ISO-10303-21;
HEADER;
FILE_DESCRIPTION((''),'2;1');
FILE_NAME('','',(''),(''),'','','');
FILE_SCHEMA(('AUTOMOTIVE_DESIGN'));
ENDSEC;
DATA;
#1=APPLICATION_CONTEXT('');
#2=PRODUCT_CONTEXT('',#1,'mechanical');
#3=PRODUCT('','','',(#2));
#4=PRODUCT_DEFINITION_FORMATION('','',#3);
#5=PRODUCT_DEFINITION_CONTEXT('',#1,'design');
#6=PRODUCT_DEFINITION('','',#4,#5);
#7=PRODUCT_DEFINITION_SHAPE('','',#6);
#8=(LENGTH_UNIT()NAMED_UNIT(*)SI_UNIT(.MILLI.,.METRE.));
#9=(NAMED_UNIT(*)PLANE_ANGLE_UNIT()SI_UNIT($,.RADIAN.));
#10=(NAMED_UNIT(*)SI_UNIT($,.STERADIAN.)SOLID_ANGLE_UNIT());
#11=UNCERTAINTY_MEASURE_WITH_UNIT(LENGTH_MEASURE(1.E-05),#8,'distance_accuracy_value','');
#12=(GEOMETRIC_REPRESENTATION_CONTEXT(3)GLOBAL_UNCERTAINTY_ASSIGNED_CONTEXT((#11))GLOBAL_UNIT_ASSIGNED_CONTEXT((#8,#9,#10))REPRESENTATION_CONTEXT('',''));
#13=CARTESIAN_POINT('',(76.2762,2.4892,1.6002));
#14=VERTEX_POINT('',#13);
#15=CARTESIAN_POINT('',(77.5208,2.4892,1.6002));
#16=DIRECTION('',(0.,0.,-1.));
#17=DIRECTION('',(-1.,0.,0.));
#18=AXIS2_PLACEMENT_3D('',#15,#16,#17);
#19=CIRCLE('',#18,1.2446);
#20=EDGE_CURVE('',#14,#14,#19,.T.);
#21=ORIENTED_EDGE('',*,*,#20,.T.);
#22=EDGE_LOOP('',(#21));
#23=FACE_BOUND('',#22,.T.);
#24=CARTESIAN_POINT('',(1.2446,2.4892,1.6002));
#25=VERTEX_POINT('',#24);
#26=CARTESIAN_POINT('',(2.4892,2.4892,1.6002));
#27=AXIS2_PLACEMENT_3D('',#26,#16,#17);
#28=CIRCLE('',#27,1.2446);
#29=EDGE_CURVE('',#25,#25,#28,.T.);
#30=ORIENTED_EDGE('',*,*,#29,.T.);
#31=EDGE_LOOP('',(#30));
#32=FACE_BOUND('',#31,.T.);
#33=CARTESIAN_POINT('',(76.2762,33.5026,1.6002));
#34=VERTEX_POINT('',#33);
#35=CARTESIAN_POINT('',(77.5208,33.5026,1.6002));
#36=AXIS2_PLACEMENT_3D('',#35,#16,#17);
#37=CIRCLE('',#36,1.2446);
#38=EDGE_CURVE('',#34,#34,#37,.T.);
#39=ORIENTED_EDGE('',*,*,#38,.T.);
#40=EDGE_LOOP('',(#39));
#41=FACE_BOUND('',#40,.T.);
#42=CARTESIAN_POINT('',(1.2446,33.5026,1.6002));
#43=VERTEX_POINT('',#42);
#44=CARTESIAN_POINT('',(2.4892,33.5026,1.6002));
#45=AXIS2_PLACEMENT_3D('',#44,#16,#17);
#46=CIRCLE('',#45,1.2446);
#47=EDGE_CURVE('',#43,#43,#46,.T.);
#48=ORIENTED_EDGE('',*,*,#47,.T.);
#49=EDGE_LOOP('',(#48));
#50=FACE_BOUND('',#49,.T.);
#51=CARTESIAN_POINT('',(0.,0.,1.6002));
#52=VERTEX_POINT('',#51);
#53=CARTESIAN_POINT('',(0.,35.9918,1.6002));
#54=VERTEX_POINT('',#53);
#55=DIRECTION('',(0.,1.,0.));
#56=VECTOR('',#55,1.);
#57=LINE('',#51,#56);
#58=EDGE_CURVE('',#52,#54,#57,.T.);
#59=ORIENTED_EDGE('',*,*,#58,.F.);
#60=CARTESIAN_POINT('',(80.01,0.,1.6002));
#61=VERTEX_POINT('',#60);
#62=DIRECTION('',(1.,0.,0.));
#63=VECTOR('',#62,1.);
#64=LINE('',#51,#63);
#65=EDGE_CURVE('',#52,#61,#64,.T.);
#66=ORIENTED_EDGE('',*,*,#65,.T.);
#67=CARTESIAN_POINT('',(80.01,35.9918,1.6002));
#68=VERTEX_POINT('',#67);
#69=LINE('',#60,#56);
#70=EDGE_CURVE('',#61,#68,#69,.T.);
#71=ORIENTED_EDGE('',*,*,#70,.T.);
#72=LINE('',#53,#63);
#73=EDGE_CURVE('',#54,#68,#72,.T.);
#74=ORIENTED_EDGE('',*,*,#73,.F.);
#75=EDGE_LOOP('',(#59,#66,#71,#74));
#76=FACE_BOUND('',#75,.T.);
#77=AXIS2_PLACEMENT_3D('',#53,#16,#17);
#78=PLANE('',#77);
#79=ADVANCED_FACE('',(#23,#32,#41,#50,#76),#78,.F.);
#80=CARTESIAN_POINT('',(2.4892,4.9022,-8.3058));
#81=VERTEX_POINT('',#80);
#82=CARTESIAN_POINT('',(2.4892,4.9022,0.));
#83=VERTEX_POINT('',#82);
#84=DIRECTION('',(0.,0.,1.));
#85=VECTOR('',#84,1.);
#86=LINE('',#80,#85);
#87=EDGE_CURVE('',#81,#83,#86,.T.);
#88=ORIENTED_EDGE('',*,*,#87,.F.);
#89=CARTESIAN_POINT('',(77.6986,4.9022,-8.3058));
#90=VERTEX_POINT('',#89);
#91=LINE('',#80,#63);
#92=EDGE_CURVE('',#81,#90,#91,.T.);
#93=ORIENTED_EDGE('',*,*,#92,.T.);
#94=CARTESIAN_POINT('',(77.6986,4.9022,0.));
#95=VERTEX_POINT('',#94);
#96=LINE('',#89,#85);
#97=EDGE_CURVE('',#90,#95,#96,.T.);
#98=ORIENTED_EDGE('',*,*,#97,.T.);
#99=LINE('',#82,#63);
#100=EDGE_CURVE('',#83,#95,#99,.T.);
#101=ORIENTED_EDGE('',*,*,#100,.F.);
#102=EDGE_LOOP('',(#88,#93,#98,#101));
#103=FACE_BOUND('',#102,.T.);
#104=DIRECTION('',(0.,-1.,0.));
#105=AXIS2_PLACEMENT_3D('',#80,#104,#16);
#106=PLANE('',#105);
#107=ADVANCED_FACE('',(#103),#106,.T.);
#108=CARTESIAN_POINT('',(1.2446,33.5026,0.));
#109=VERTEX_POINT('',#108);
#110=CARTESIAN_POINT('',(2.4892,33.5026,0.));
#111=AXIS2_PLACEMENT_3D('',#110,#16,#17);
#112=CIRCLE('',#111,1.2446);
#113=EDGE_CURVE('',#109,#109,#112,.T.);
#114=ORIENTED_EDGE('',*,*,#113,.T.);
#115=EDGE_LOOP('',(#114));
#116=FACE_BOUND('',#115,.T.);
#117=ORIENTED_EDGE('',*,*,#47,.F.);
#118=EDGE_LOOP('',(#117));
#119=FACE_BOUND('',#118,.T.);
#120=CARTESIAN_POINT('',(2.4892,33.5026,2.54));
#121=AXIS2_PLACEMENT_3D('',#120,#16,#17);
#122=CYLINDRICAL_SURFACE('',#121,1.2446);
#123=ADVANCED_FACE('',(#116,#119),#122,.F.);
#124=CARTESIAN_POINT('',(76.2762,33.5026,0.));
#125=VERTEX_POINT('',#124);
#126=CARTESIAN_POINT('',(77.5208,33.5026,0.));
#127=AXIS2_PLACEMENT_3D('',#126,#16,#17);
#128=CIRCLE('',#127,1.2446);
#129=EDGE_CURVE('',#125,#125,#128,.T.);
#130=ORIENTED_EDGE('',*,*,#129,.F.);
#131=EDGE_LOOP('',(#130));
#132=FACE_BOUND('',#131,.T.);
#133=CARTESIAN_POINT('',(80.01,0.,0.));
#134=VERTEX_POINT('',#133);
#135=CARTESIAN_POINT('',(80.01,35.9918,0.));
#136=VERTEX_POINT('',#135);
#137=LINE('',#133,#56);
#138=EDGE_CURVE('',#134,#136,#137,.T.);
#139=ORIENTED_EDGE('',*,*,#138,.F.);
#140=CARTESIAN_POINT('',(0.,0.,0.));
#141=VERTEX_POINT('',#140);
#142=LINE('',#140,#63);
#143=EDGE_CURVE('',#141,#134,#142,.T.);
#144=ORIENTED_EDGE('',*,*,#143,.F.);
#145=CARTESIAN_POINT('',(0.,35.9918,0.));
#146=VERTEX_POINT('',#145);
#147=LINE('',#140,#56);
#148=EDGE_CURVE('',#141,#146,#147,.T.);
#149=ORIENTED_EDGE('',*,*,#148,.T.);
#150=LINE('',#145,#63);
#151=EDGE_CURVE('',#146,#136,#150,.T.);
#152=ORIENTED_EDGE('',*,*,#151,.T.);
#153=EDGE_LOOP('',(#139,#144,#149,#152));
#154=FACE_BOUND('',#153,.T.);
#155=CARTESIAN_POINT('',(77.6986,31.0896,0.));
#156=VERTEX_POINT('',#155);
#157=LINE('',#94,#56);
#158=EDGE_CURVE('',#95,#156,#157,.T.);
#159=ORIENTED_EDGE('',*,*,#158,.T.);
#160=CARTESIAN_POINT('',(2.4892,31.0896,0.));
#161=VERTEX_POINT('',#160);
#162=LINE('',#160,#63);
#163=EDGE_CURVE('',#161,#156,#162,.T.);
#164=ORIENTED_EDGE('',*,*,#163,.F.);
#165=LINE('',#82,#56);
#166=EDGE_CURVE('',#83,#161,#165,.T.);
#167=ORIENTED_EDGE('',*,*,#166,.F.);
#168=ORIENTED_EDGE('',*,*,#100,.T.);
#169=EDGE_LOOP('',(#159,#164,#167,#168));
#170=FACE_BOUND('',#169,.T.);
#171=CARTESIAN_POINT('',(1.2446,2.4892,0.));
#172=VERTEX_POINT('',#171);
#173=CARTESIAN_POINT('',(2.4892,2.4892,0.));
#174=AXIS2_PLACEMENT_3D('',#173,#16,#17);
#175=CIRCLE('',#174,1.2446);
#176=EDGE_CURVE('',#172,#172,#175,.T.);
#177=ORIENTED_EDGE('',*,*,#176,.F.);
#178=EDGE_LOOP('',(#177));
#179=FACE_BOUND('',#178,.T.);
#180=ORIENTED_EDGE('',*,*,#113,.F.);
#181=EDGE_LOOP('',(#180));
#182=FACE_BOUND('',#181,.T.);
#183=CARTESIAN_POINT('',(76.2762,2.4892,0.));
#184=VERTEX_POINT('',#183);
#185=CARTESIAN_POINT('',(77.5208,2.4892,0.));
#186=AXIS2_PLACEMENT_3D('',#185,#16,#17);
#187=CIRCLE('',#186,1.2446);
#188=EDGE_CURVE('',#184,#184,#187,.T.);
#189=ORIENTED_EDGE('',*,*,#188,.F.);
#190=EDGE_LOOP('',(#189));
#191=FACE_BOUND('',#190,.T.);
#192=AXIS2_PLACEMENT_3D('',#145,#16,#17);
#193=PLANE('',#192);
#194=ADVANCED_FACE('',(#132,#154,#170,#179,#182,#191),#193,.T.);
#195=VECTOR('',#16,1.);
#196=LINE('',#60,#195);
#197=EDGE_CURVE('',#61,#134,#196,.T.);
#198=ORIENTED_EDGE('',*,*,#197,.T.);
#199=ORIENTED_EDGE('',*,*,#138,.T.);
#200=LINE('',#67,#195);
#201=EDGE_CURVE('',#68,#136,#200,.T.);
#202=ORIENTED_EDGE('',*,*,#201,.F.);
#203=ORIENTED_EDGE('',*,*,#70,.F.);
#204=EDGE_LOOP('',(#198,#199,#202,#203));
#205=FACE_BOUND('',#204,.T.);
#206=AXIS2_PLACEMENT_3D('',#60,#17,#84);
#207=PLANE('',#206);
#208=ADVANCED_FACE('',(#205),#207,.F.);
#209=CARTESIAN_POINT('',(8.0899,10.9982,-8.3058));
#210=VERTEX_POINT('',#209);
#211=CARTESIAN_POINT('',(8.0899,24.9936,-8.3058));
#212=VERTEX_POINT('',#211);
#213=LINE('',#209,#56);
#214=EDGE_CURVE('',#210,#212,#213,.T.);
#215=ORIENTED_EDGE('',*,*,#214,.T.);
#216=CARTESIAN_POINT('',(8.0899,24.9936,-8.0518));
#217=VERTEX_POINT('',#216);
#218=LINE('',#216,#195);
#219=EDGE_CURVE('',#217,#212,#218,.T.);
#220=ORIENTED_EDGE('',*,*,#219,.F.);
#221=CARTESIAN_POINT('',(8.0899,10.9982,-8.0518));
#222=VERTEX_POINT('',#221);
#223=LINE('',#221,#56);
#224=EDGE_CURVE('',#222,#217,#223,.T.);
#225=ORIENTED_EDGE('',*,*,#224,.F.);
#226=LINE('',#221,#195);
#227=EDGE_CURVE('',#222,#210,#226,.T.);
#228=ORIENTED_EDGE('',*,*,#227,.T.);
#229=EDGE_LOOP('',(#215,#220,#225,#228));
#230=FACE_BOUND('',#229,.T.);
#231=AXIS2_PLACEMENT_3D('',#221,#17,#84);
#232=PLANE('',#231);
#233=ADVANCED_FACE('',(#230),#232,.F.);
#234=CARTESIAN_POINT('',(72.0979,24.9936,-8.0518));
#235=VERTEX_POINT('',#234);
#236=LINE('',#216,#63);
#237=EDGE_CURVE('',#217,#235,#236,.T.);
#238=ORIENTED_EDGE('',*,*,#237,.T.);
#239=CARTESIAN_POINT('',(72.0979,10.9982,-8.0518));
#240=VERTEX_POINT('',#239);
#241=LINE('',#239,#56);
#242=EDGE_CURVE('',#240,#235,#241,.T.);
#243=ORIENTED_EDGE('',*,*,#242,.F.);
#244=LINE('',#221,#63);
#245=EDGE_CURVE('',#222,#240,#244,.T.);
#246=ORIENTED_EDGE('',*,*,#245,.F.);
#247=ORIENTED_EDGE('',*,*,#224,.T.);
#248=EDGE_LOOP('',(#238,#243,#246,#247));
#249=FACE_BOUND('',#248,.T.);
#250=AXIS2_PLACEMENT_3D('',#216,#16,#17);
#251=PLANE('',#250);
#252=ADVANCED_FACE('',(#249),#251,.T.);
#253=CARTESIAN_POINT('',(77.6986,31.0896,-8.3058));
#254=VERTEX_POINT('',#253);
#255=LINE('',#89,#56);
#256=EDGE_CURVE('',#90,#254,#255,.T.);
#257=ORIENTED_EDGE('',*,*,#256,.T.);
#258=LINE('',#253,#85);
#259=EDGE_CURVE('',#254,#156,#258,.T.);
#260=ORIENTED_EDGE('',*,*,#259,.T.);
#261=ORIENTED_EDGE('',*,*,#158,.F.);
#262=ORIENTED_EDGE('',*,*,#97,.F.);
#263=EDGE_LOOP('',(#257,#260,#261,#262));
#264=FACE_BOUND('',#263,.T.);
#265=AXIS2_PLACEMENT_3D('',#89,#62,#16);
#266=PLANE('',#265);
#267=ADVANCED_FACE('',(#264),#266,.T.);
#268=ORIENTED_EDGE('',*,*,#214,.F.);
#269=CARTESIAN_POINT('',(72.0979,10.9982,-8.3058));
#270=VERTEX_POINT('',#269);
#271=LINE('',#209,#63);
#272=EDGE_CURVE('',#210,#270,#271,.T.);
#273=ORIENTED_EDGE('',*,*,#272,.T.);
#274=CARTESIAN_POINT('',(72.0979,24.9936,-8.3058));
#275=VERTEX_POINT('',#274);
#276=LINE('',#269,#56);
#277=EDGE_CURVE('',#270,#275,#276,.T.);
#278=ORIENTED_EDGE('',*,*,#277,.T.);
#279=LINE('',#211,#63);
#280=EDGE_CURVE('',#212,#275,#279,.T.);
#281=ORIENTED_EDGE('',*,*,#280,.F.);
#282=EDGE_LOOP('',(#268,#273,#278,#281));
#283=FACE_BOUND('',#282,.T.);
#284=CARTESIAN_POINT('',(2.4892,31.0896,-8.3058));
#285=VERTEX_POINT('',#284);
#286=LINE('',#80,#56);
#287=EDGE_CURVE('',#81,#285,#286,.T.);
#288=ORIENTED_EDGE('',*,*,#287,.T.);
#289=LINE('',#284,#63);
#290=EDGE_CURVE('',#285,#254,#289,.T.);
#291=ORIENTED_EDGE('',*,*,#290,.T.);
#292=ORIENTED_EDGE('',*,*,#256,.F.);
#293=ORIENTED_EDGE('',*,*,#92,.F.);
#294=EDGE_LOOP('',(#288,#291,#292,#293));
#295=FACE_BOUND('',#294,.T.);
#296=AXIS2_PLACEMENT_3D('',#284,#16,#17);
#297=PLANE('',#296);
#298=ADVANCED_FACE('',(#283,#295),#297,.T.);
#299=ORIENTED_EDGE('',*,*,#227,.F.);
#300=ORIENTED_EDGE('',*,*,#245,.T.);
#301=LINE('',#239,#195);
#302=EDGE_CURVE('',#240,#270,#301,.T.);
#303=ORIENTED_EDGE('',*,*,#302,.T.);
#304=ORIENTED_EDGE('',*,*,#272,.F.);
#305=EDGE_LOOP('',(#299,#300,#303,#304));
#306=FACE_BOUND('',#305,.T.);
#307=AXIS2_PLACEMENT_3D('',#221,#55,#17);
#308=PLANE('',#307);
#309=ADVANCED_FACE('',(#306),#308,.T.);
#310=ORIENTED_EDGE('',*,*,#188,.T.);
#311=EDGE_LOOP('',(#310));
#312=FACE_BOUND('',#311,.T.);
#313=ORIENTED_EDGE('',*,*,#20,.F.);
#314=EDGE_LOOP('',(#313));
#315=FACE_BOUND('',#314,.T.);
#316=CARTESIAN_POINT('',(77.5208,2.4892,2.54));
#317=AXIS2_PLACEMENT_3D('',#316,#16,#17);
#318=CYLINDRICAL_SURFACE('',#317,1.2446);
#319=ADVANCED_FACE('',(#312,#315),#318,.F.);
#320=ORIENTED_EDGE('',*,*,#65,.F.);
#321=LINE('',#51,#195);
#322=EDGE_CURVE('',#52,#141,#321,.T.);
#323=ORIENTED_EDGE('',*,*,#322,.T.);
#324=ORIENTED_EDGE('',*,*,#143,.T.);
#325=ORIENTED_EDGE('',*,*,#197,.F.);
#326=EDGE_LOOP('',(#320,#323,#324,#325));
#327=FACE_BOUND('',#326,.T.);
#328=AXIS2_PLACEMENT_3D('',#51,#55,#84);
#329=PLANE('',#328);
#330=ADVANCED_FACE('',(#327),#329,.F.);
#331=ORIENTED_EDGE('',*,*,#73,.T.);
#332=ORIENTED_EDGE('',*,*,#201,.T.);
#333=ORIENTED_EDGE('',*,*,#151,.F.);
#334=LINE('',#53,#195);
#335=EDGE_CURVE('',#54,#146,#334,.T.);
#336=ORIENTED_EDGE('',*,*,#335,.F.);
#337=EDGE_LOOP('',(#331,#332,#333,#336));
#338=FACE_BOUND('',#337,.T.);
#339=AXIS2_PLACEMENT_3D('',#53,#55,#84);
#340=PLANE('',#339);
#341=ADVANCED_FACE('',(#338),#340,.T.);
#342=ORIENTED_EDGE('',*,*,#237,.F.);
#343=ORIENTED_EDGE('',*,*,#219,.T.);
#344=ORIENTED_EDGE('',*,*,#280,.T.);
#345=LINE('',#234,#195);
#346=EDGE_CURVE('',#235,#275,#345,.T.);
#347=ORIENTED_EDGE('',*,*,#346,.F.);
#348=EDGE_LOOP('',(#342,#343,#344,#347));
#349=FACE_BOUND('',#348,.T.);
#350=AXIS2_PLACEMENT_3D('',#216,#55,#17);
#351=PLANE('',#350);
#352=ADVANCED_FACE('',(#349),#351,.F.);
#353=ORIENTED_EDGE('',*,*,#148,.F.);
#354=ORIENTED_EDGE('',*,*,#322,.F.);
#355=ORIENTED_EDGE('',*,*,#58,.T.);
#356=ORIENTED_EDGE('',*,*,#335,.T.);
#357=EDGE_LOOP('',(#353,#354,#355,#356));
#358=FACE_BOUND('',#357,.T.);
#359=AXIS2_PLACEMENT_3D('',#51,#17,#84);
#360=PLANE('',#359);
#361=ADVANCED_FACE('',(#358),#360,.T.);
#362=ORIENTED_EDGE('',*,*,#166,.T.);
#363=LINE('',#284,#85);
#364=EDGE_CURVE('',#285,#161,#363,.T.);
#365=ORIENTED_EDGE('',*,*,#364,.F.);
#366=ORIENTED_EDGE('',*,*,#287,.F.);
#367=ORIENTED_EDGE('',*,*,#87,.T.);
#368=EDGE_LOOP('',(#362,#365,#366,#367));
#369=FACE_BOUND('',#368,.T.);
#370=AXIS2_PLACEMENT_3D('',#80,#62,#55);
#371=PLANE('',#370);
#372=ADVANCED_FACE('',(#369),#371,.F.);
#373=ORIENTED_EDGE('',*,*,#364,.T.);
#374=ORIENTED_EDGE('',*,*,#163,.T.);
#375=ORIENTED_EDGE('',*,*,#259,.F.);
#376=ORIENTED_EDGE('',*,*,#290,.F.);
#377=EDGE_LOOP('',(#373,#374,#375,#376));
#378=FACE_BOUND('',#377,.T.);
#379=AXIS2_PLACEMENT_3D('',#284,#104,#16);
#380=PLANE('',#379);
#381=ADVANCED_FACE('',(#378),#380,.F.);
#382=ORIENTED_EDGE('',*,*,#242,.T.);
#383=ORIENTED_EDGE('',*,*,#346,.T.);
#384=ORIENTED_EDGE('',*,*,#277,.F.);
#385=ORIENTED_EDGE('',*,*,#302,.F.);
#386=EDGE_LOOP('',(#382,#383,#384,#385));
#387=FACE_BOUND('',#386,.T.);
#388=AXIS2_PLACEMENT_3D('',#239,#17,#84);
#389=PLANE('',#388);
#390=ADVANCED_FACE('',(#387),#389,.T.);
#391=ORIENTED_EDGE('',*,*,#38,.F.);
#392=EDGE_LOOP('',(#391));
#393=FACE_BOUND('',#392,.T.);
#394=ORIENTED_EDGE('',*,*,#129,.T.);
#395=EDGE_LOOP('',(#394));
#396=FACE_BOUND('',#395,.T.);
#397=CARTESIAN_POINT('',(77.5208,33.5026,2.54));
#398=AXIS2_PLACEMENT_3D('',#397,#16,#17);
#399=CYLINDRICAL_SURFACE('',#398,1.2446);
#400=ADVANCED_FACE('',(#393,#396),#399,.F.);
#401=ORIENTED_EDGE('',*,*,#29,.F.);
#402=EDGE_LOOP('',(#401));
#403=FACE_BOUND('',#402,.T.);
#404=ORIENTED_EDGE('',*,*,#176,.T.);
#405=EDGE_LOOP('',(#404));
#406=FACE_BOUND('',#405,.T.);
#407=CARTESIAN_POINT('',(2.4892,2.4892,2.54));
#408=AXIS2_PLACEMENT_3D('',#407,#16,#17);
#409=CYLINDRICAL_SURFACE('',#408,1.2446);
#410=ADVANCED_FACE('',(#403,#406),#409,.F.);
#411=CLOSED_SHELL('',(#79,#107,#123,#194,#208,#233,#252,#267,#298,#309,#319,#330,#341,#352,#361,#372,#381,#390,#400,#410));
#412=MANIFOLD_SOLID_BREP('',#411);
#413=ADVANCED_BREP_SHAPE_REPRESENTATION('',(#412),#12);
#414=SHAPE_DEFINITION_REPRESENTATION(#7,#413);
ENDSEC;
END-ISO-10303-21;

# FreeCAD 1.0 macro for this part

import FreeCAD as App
import Part
import Sketcher
from FreeCAD import Vector
Q = App.Units.Quantity


def add_polygon(sketch, points):
    """Adds a closed chain of lines whose ends are joined by coincident constraints."""
    first, n = sketch.GeometryCount, len(points)
    for a, b in zip(points, points[1:] + points[:1]):
        sketch.addGeometry(Part.LineSegment(App.Vector(*a, 0), App.Vector(*b, 0)), False)
    for i in range(n):
        sketch.addConstraint(Sketcher.Constraint("Coincident", first + i, 2, first + (i + 1) % n, 1))

doc = App.newDocument("Part")
params = doc.addObject("Spreadsheet::Sheet", "Params")
for row, (alias, value) in enumerate([
    ("sketch1_width", "3.15 in"),
    ("sketch1_height", "1.417 in"),
    ("pad1_length", "0.063 in"),
    ("sketch2_width", "2.961 in"),
    ("sketch2_height", "1.031 in"),
    ("pad2_length", "0.327 in"),
    ("sketch3_width", "2.52 in"),
    ("sketch3_height", "0.551 in"),
    ("pocket1_length", "0.01 in"),
    ("sketch4_diameter", "0.098 in"),
    ("pocket2_length", "0.1 in"),
], start=1):
    params.set(f"A{row}", alias)
    params.set(f"B{row}", "=" + value)
    params.setAlias(f"B{row}", alias)

body = doc.addObject("PartDesign::Body", "Body")

# Sketch on XY plane
sketch1 = body.newObject("Sketcher::SketchObject", "Sketch")
sketch1.AttachmentSupport = (doc.getObject("XY_Plane"), [""])
sketch1.MapMode = "FlatFace"
add_polygon(sketch1, [(0, 36), (0, 0), (80, 0), (80, 36)])  # lines 0-3
sketch1.addConstraint(Sketcher.Constraint("Vertical", 0))
sketch1.addConstraint(Sketcher.Constraint("Horizontal", 1))
sketch1.addConstraint(Sketcher.Constraint("Vertical", 2))
sketch1.addConstraint(Sketcher.Constraint("Horizontal", 3))
sketch1.addConstraint(Sketcher.Constraint("Coincident", 0, 2, -1, 1))
sketch1.addConstraint(Sketcher.Constraint("DistanceX", 1, 1, 1, 2, Q("3.15 in")))
sketch1.addConstraint(Sketcher.Constraint("DistanceY", 0, 2, 0, 1, Q("1.417 in")))
sketch1.setExpression("Constraints[9]", "Params.sketch1_width")
sketch1.setExpression("Constraints[10]", "Params.sketch1_height")
pad1 = body.newObject("PartDesign::Pad", "Pad")
pad1.Profile = sketch1
pad1.setExpression("Length", "Params.pad1_length")

# Sketch on XY plane
sketch2 = body.newObject("Sketcher::SketchObject", "Sketch001")
sketch2.AttachmentSupport = (doc.getObject("XY_Plane"), [""])
sketch2.MapMode = "FlatFace"
add_polygon(sketch2, [(2, 31), (2, 5), (78, 5), (78, 31)])  # lines 0-3
sketch2.addConstraint(Sketcher.Constraint("Vertical", 0))
sketch2.addConstraint(Sketcher.Constraint("Horizontal", 1))
sketch2.addConstraint(Sketcher.Constraint("Vertical", 2))
sketch2.addConstraint(Sketcher.Constraint("Horizontal", 3))
sketch2.addConstraint(Sketcher.Constraint("DistanceX", 1, 1, 1, 2, Q("2.961 in")))
sketch2.addConstraint(Sketcher.Constraint("DistanceY", 0, 2, 0, 1, Q("1.031 in")))
sketch2.addConstraint(Sketcher.Constraint("DistanceX", -1, 1, 0, 2, Q("0.098 in")))
sketch2.addConstraint(Sketcher.Constraint("DistanceY", -1, 1, 0, 2, Q("0.193 in")))
sketch2.setExpression("Constraints[8]", "Params.sketch2_width")
sketch2.setExpression("Constraints[9]", "Params.sketch2_height")
pad2 = body.newObject("PartDesign::Pad", "Pad001")
pad2.Profile = sketch2
pad2.setExpression("Length", "Params.pad2_length")
pad2.Reversed = True

# Sketch on XY plane
sketch3 = body.newObject("Sketcher::SketchObject", "Sketch002")
sketch3.AttachmentSupport = (doc.getObject("XY_Plane"), [""])
sketch3.MapMode = "FlatFace"
sketch3.AttachmentOffset = App.Placement(Vector(0, 0, -0.327 * 25.4), App.Rotation())
add_polygon(sketch3, [(72, 25), (72, 11), (8, 11), (8, 25)])  # lines 0-3
sketch3.addConstraint(Sketcher.Constraint("Vertical", 0))
sketch3.addConstraint(Sketcher.Constraint("Horizontal", 1))
sketch3.addConstraint(Sketcher.Constraint("Vertical", 2))
sketch3.addConstraint(Sketcher.Constraint("Horizontal", 3))
sketch3.addConstraint(Sketcher.Constraint("DistanceX", 1, 2, 1, 1, Q("2.52 in")))
sketch3.addConstraint(Sketcher.Constraint("DistanceY", 0, 2, 0, 1, Q("0.551 in")))
sketch3.addConstraint(Sketcher.Constraint("DistanceY", -1, 1, 0, 2, Q("0.433 in")))
sketch3.addConstraint(Sketcher.Constraint("DistanceX", -1, 1, 0, 2, Q("2.8385 in")))
sketch3.setExpression("Constraints[8]", "Params.sketch3_width")
sketch3.setExpression("Constraints[9]", "Params.sketch3_height")
pocket1 = body.newObject("PartDesign::Pocket", "Pocket")
pocket1.Profile = sketch3
pocket1.setExpression("Length", "Params.pocket1_length")
pocket1.Reversed = True

# Sketch on XY plane
sketch4 = body.newObject("Sketcher::SketchObject", "Sketch003")
sketch4.AttachmentSupport = (doc.getObject("XY_Plane"), [""])
sketch4.MapMode = "FlatFace"
sketch4.addGeometry(Part.Circle(Vector(77.5, 2.5, 0), Vector(0, 0, 1), 1.2), False)
sketch4.addGeometry(Part.Circle(Vector(77.5, 33.5, 0), Vector(0, 0, 1), 1.2), False)
sketch4.addGeometry(Part.Circle(Vector(2.5, 33.5, 0), Vector(0, 0, 1), 1.2), False)
sketch4.addGeometry(Part.Circle(Vector(2.5, 2.5, 0), Vector(0, 0, 1), 1.2), False)
sketch4.addConstraint(Sketcher.Constraint("Equal", 0, 1))
sketch4.addConstraint(Sketcher.Constraint("Equal", 1, 2))
sketch4.addConstraint(Sketcher.Constraint("Equal", 2, 3))
sketch4.addConstraint(Sketcher.Constraint("Horizontal", 1, 3, 2, 3))
sketch4.addConstraint(Sketcher.Constraint("Horizontal", 0, 3, 3, 3))
sketch4.addConstraint(Sketcher.Constraint("Vertical", 0, 3, 1, 3))
sketch4.addConstraint(Sketcher.Constraint("Vertical", 2, 3, 3, 3))
sketch4.addConstraint(Sketcher.Constraint("Diameter", 0, Q("0.098 in")))
sketch4.addConstraint(Sketcher.Constraint("DistanceX", -1, 1, 0, 3, Q("3.052 in")))
sketch4.addConstraint(Sketcher.Constraint("DistanceY", -1, 1, 0, 3, Q("0.098 in")))
sketch4.addConstraint(Sketcher.Constraint("DistanceY", -1, 1, 1, 3, Q("1.319 in")))
sketch4.addConstraint(Sketcher.Constraint("DistanceX", -1, 1, 2, 3, Q("0.098 in")))
sketch4.setExpression("Constraints[7]", "Params.sketch4_diameter")
pocket2 = body.newObject("PartDesign::Pocket", "Pocket001")
pocket2.Profile = sketch4
pocket2.setExpression("Length", "Params.pocket2_length")
pocket2.Reversed = True

doc.recompute()
